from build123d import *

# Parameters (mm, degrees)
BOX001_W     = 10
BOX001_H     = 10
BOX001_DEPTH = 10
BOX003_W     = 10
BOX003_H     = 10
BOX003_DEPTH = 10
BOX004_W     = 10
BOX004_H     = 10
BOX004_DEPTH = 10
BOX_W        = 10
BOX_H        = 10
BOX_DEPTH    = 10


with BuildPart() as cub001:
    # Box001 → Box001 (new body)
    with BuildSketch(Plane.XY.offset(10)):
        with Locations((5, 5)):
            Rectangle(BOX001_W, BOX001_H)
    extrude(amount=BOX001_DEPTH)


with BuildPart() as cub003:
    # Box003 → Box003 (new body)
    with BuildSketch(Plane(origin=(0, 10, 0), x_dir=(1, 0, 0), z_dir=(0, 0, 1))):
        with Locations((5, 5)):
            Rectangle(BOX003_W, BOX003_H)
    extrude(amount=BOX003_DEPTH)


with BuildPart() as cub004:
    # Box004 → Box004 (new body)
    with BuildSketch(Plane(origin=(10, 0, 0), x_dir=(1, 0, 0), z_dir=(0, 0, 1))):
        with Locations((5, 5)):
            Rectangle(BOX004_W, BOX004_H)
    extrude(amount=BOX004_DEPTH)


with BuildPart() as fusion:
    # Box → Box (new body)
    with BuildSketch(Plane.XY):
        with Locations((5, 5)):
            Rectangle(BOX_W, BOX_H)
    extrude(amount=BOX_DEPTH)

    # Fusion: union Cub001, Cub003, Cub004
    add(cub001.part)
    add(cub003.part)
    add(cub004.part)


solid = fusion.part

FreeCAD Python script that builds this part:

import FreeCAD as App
import Part
import Sketcher
Q = App.Units.Quantity


def add_polygon(sketch, points):
    """Adds a closed chain of lines whose ends are joined by coincident constraints."""
    first, n = sketch.GeometryCount, len(points)
    for a, b in zip(points, points[1:] + points[:1]):
        sketch.addGeometry(Part.LineSegment(App.Vector(*a, 0), App.Vector(*b, 0)), False)
    for i in range(n):
        sketch.addConstraint(Sketcher.Constraint("Coincident", first + i, 2, first + (i + 1) % n, 1))

doc = App.newDocument("Part")
params = doc.addObject("Spreadsheet::Sheet", "Params")
for row, (alias, value) in enumerate([
    ("sketch1_width", "10 mm"),
    ("pad1_length", "10 mm"),
    ("sketch2_width", "10 mm"),
    ("pad2_length", "10 mm"),
    ("sketch3_width", "10 mm"),
    ("pad3_length", "10 mm"),
    ("sketch4_width", "10 mm"),
    ("pad4_length", "10 mm"),
], start=1):
    params.set(f"A{row}", alias)
    params.set(f"B{row}", "=" + value)
    params.setAlias(f"B{row}", alias)

body = doc.addObject("PartDesign::Body", "Body")

# Sketch on XY plane
sketch1 = body.newObject("Sketcher::SketchObject", "Sketch")
sketch1.AttachmentSupport = (doc.getObject("XY_Plane"), [""])
sketch1.MapMode = "FlatFace"
sketch1.AttachmentOffset = App.Placement(App.Vector(0, 0, 10), App.Rotation())
add_polygon(sketch1, [(0, 10), (0, 0), (10, 0), (10, 10)])  # lines 0-3
sketch1.addConstraint([
    Sketcher.Constraint("Vertical", 0),
    Sketcher.Constraint("Horizontal", 1),
    Sketcher.Constraint("Vertical", 2),
    Sketcher.Constraint("Horizontal", 3),
    Sketcher.Constraint("Coincident", 0, 2, -1, 1),
    Sketcher.Constraint("Equal", 3, 0),
    Sketcher.Constraint("DistanceX", 1, 1, 1, 2, Q("10 mm")),
])
sketch1.setExpression("Constraints[10]", "Params.sketch1_width")
pad1 = body.newObject("PartDesign::Pad", "Pad")
pad1.Profile = sketch1
pad1.setExpression("Length", "Params.pad1_length")
body2 = doc.addObject("PartDesign::Body", "Body001")

# Sketch on XY plane
sketch2 = body2.newObject("Sketcher::SketchObject", "Sketch001")
sketch2.AttachmentSupport = (doc.getObject("XY_Plane001"), [""])
sketch2.MapMode = "FlatFace"
add_polygon(sketch2, [(0, 20), (0, 10), (10, 10), (10, 20)])  # lines 0-3
sketch2.addConstraint([
    Sketcher.Constraint("Vertical", 0),
    Sketcher.Constraint("Horizontal", 1),
    Sketcher.Constraint("Vertical", 2),
    Sketcher.Constraint("Horizontal", 3),
    Sketcher.Constraint("PointOnObject", 0, 2, -2),
    Sketcher.Constraint("Equal", 3, 0),
    Sketcher.Constraint("DistanceX", 1, 1, 1, 2, Q("10 mm")),
    Sketcher.Constraint("DistanceY", -1, 1, 0, 2, Q("10 mm")),
])
sketch2.setExpression("Constraints[10]", "Params.sketch2_width")
pad2 = body2.newObject("PartDesign::Pad", "Pad001")
pad2.Profile = sketch2
pad2.setExpression("Length", "Params.pad2_length")
body3 = doc.addObject("PartDesign::Body", "Body002")

# Sketch on XY plane
sketch3 = body3.newObject("Sketcher::SketchObject", "Sketch002")
sketch3.AttachmentSupport = (doc.getObject("XY_Plane002"), [""])
sketch3.MapMode = "FlatFace"
add_polygon(sketch3, [(10, 10), (10, 0), (20, 0), (20, 10)])  # lines 0-3
sketch3.addConstraint([
    Sketcher.Constraint("Vertical", 0),
    Sketcher.Constraint("Horizontal", 1),
    Sketcher.Constraint("Vertical", 2),
    Sketcher.Constraint("Horizontal", 3),
    Sketcher.Constraint("PointOnObject", 0, 2, -1),
    Sketcher.Constraint("Equal", 3, 0),
    Sketcher.Constraint("DistanceX", 1, 1, 1, 2, Q("10 mm")),
    Sketcher.Constraint("DistanceX", -1, 1, 0, 2, Q("10 mm")),
])
sketch3.setExpression("Constraints[10]", "Params.sketch3_width")
pad3 = body3.newObject("PartDesign::Pad", "Pad002")
pad3.Profile = sketch3
pad3.setExpression("Length", "Params.pad3_length")
body4 = doc.addObject("PartDesign::Body", "Body003")

# Sketch on XY plane
sketch4 = body4.newObject("Sketcher::SketchObject", "Sketch003")
sketch4.AttachmentSupport = (doc.getObject("XY_Plane003"), [""])
sketch4.MapMode = "FlatFace"
add_polygon(sketch4, [(0, 10), (0, 0), (10, 0), (10, 10)])  # lines 0-3
sketch4.addConstraint([
    Sketcher.Constraint("Vertical", 0),
    Sketcher.Constraint("Horizontal", 1),
    Sketcher.Constraint("Vertical", 2),
    Sketcher.Constraint("Horizontal", 3),
    Sketcher.Constraint("Coincident", 0, 2, -1, 1),
    Sketcher.Constraint("Equal", 3, 0),
    Sketcher.Constraint("DistanceX", 1, 1, 1, 2, Q("10 mm")),
])
sketch4.setExpression("Constraints[10]", "Params.sketch4_width")
pad4 = body4.newObject("PartDesign::Pad", "Pad003")
pad4.Profile = sketch4
pad4.setExpression("Length", "Params.pad4_length")
doc.recompute()

boolean = body4.newObject("PartDesign::Boolean", "Boolean")
boolean.Type = "Fuse"
boolean.addObjects([body])
doc.recompute()

boolean2 = body4.newObject("PartDesign::Boolean", "Boolean001")
boolean2.Type = "Fuse"
boolean2.addObjects([body2])
doc.recompute()

boolean3 = body4.newObject("PartDesign::Boolean", "Boolean002")
boolean3.Type = "Fuse"
boolean3.addObjects([body3])

doc.recompute()
